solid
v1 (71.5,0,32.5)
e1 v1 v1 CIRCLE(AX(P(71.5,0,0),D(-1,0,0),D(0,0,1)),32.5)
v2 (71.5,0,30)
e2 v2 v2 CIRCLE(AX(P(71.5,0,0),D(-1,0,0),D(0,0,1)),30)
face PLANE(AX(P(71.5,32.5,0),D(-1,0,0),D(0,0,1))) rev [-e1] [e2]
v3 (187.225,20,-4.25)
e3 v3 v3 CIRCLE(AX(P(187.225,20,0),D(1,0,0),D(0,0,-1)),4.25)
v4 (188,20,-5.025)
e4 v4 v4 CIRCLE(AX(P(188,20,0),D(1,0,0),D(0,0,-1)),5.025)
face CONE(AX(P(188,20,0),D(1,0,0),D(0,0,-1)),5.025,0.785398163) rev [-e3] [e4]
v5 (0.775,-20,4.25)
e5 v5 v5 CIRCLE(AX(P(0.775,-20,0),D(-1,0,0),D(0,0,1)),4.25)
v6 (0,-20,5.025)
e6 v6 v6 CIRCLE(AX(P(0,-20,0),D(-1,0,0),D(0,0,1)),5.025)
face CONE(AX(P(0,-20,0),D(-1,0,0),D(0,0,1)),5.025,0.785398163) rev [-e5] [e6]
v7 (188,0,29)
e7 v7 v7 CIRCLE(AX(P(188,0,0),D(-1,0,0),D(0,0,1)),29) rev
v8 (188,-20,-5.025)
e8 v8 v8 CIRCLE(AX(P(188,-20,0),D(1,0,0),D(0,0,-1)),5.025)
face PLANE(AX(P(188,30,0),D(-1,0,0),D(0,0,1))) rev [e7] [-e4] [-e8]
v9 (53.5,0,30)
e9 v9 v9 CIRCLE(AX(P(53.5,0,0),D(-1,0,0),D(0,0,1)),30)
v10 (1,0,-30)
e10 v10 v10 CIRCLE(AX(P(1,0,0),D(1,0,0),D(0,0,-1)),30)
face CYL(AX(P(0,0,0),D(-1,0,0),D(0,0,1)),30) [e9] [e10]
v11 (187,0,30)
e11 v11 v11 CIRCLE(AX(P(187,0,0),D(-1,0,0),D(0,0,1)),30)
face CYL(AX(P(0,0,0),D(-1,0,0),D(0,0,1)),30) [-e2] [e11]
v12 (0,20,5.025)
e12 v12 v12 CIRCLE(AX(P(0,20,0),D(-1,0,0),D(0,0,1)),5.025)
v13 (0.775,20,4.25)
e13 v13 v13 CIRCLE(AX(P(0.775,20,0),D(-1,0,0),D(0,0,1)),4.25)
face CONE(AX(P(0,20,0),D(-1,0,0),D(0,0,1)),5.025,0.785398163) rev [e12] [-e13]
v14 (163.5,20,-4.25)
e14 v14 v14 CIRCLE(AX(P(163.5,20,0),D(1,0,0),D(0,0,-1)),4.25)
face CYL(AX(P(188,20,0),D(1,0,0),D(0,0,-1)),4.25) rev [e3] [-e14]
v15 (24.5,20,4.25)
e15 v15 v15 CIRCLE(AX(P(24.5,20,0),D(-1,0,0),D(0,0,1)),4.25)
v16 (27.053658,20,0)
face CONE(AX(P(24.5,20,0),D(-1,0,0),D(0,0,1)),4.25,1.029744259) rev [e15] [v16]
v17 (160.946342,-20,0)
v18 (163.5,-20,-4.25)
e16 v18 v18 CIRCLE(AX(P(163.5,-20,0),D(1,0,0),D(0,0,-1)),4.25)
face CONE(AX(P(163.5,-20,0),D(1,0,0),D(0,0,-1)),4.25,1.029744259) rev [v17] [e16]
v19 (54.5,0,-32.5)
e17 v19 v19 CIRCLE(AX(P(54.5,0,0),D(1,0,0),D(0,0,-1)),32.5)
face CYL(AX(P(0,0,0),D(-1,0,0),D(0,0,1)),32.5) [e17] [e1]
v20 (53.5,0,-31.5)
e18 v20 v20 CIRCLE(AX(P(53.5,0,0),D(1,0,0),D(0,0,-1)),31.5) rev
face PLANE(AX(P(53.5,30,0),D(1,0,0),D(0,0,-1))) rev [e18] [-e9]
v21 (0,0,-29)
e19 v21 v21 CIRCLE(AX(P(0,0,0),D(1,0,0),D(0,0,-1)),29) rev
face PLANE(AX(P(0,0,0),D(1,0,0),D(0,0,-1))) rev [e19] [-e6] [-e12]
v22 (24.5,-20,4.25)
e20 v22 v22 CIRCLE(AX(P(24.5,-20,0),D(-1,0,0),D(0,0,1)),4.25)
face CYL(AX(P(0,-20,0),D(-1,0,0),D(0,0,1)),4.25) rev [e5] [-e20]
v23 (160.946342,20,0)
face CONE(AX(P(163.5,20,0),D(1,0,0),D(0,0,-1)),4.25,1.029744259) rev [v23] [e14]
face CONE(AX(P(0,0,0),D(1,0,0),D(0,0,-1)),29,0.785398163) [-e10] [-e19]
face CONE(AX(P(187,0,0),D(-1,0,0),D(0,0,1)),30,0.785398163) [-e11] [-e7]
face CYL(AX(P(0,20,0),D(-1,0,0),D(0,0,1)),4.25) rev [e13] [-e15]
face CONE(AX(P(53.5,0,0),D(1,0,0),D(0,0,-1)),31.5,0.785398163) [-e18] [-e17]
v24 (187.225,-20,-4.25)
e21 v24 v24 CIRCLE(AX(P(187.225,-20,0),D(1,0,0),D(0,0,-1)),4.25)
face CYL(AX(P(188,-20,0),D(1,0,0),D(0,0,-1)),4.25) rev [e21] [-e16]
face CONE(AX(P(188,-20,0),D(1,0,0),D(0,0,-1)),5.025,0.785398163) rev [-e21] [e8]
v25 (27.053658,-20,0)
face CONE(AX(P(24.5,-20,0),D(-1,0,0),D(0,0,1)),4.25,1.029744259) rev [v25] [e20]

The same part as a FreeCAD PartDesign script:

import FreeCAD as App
import Part
import Sketcher
from FreeCAD import Vector


def edges_at(feature, points):
    """Names of the edges that pass closest to the given points."""
    edges = feature.Shape.Edges
    near = lambda p: min(range(len(edges)), key=lambda i: edges[i].distToShape(Part.Vertex(*p))[0])
    return sorted({f"Edge{near(p) + 1}" for p in points})

doc = App.newDocument("Part")
body = doc.addObject("PartDesign::Body", "Body")

# Sketch on XY plane
sketch1 = doc.addObject("Sketcher::SketchObject", "Sketch")
body.addObject(sketch1)
sketch1.AttachmentSupport = (doc.XY_Plane, [""])
sketch1.MapMode = "FlatFace"
sketch1.addGeometry(Part.LineSegment(Vector(0, 30, 0), Vector(0, 0, 0)), False)
sketch1.addGeometry(Part.LineSegment(Vector(0, 0, 0), Vector(188, 0, 0)), False)
sketch1.addGeometry(Part.LineSegment(Vector(188, 0, 0), Vector(188, 30, 0)), False)
sketch1.addGeometry(Part.LineSegment(Vector(188, 30, 0), Vector(71.5, 30, 0)), False)
sketch1.addGeometry(Part.LineSegment(Vector(71.5, 30, 0), Vector(71.5, 32.5, 0)), False)
sketch1.addGeometry(Part.LineSegment(Vector(71.5, 32.5, 0), Vector(53.5, 32.5, 0)), False)
sketch1.addGeometry(Part.LineSegment(Vector(53.5, 32.5, 0), Vector(53.5, 30, 0)), False)
sketch1.addGeometry(Part.LineSegment(Vector(53.5, 30, 0), Vector(0, 30, 0)), False)
sketch1.addConstraint(Sketcher.Constraint("Coincident", 0, 2, 1, 1))
sketch1.addConstraint(Sketcher.Constraint("Coincident", 1, 2, 2, 1))
sketch1.addConstraint(Sketcher.Constraint("Coincident", 2, 2, 3, 1))
sketch1.addConstraint(Sketcher.Constraint("Coincident", 3, 2, 4, 1))
sketch1.addConstraint(Sketcher.Constraint("Coincident", 4, 2, 5, 1))
sketch1.addConstraint(Sketcher.Constraint("Coincident", 5, 2, 6, 1))
sketch1.addConstraint(Sketcher.Constraint("Coincident", 6, 2, 7, 1))
sketch1.addConstraint(Sketcher.Constraint("Coincident", 7, 2, 0, 1))
sketch1.addConstraint(Sketcher.Constraint("Vertical", 0))
sketch1.addConstraint(Sketcher.Constraint("Horizontal", 1))
sketch1.addConstraint(Sketcher.Constraint("Vertical", 2))
sketch1.addConstraint(Sketcher.Constraint("Horizontal", 3))
sketch1.addConstraint(Sketcher.Constraint("Vertical", 4))
sketch1.addConstraint(Sketcher.Constraint("Horizontal", 5))
sketch1.addConstraint(Sketcher.Constraint("Vertical", 6))
sketch1.addConstraint(Sketcher.Constraint("Horizontal", 7))
sketch1.addConstraint(Sketcher.Constraint("Coincident", 0, 2, -1, 1))
sketch1.addConstraint(Sketcher.Constraint("Horizontal", 3, 2, 6, 2))
sketch1.addConstraint(Sketcher.Constraint("DistanceX", 1, 1, 1, 2, 188.0))
sketch1.addConstraint(Sketcher.Constraint("DistanceX", 5, 2, 5, 1, 18.0))
sketch1.addConstraint(Sketcher.Constraint("DistanceY", 0, 2, 0, 1, 30.0))
sketch1.addConstraint(Sketcher.Constraint("DistanceX", 3, 2, 3, 1, 116.5))
sketch1.addConstraint(Sketcher.Constraint("DistanceY", 4, 1, 4, 2, 2.5))
revolution = doc.addObject("PartDesign::Revolution", "Revolution")
body.addObject(revolution)
revolution.Profile = sketch1
revolution.ReferenceAxis = (sketch1, ["H_Axis"])
revolution.Angle = 360

# Sketch on YZ plane
sketch2 = doc.addObject("Sketcher::SketchObject", "Sketch001")
body.addObject(sketch2)
sketch2.AttachmentSupport = (doc.YZ_Plane, [""])
sketch2.MapMode = "FlatFace"
sketch2.addGeometry(Part.Circle(Vector(20, 0, 0), Vector(0, 0, 1), 4.25), False)
sketch2.addGeometry(Part.Circle(Vector(-20, 0, 0), Vector(0, 0, 1), 4.25), False)
sketch2.addConstraint(Sketcher.Constraint("Equal", 0, 1))
sketch2.addConstraint(Sketcher.Constraint("Symmetric", 0, 3, 1, 3, -1, 1))
sketch2.addConstraint(Sketcher.Constraint("PointOnObject", 0, 3, -1))
sketch2.addConstraint(Sketcher.Constraint("Diameter", 0, 8.5))
sketch2.addConstraint(Sketcher.Constraint("DistanceX", -1, 1, 0, 3, 20.0))
doc.recompute()
hole = doc.addObject("PartDesign::Hole", "Hole")
body.addObject(hole)
hole.Profile = sketch2
hole.ThreadType = "None"
hole.Diameter = 8.5
hole.DepthType = "Dimension"
hole.Depth = 24.5
hole.DrillPoint = "Angled"
hole.DrillPointAngle = 118
hole.HoleCutType = "Countersink"
hole.HoleCutDiameter = 10.05
hole.HoleCutCountersinkAngle = 90
hole.Reversed = True

# Sketch on YZ plane
sketch3 = doc.addObject("Sketcher::SketchObject", "Sketch002")
body.addObject(sketch3)
sketch3.AttachmentSupport = (doc.YZ_Plane, [""])
sketch3.MapMode = "FlatFace"
sketch3.AttachmentOffset = App.Placement(Vector(0, 0, 188), App.Rotation())
sketch3.addGeometry(Part.Circle(Vector(20, 0, 0), Vector(0, 0, 1), 4.25), False)
sketch3.addGeometry(Part.Circle(Vector(-20, 0, 0), Vector(0, 0, 1), 4.25), False)
sketch3.addConstraint(Sketcher.Constraint("Equal", 0, 1))
sketch3.addConstraint(Sketcher.Constraint("Symmetric", 0, 3, 1, 3, -1, 1))
sketch3.addConstraint(Sketcher.Constraint("PointOnObject", 0, 3, -1))
sketch3.addConstraint(Sketcher.Constraint("Diameter", 0, 8.5))
sketch3.addConstraint(Sketcher.Constraint("DistanceX", -1, 1, 0, 3, 20.0))
doc.recompute()
hole2 = doc.addObject("PartDesign::Hole", "Hole001")
body.addObject(hole2)
hole2.Profile = sketch3
hole2.ThreadType = "None"
hole2.Diameter = 8.5
hole2.DepthType = "Dimension"
hole2.Depth = 24.5
hole2.DrillPoint = "Angled"
hole2.DrillPointAngle = 118
hole2.HoleCutType = "Countersink"
hole2.HoleCutDiameter = 10.05
hole2.HoleCutCountersinkAngle = 90
doc.recompute()

chamfer = doc.addObject("PartDesign::Chamfer", "Chamfer")
body.addObject(chamfer)
chamfer.Base = (hole2, edges_at(hole2, [(0, 0, -30), (53.5, 0, -32.5), (188, 0, -30)]))
chamfer.Size = 1

doc.recompute()
